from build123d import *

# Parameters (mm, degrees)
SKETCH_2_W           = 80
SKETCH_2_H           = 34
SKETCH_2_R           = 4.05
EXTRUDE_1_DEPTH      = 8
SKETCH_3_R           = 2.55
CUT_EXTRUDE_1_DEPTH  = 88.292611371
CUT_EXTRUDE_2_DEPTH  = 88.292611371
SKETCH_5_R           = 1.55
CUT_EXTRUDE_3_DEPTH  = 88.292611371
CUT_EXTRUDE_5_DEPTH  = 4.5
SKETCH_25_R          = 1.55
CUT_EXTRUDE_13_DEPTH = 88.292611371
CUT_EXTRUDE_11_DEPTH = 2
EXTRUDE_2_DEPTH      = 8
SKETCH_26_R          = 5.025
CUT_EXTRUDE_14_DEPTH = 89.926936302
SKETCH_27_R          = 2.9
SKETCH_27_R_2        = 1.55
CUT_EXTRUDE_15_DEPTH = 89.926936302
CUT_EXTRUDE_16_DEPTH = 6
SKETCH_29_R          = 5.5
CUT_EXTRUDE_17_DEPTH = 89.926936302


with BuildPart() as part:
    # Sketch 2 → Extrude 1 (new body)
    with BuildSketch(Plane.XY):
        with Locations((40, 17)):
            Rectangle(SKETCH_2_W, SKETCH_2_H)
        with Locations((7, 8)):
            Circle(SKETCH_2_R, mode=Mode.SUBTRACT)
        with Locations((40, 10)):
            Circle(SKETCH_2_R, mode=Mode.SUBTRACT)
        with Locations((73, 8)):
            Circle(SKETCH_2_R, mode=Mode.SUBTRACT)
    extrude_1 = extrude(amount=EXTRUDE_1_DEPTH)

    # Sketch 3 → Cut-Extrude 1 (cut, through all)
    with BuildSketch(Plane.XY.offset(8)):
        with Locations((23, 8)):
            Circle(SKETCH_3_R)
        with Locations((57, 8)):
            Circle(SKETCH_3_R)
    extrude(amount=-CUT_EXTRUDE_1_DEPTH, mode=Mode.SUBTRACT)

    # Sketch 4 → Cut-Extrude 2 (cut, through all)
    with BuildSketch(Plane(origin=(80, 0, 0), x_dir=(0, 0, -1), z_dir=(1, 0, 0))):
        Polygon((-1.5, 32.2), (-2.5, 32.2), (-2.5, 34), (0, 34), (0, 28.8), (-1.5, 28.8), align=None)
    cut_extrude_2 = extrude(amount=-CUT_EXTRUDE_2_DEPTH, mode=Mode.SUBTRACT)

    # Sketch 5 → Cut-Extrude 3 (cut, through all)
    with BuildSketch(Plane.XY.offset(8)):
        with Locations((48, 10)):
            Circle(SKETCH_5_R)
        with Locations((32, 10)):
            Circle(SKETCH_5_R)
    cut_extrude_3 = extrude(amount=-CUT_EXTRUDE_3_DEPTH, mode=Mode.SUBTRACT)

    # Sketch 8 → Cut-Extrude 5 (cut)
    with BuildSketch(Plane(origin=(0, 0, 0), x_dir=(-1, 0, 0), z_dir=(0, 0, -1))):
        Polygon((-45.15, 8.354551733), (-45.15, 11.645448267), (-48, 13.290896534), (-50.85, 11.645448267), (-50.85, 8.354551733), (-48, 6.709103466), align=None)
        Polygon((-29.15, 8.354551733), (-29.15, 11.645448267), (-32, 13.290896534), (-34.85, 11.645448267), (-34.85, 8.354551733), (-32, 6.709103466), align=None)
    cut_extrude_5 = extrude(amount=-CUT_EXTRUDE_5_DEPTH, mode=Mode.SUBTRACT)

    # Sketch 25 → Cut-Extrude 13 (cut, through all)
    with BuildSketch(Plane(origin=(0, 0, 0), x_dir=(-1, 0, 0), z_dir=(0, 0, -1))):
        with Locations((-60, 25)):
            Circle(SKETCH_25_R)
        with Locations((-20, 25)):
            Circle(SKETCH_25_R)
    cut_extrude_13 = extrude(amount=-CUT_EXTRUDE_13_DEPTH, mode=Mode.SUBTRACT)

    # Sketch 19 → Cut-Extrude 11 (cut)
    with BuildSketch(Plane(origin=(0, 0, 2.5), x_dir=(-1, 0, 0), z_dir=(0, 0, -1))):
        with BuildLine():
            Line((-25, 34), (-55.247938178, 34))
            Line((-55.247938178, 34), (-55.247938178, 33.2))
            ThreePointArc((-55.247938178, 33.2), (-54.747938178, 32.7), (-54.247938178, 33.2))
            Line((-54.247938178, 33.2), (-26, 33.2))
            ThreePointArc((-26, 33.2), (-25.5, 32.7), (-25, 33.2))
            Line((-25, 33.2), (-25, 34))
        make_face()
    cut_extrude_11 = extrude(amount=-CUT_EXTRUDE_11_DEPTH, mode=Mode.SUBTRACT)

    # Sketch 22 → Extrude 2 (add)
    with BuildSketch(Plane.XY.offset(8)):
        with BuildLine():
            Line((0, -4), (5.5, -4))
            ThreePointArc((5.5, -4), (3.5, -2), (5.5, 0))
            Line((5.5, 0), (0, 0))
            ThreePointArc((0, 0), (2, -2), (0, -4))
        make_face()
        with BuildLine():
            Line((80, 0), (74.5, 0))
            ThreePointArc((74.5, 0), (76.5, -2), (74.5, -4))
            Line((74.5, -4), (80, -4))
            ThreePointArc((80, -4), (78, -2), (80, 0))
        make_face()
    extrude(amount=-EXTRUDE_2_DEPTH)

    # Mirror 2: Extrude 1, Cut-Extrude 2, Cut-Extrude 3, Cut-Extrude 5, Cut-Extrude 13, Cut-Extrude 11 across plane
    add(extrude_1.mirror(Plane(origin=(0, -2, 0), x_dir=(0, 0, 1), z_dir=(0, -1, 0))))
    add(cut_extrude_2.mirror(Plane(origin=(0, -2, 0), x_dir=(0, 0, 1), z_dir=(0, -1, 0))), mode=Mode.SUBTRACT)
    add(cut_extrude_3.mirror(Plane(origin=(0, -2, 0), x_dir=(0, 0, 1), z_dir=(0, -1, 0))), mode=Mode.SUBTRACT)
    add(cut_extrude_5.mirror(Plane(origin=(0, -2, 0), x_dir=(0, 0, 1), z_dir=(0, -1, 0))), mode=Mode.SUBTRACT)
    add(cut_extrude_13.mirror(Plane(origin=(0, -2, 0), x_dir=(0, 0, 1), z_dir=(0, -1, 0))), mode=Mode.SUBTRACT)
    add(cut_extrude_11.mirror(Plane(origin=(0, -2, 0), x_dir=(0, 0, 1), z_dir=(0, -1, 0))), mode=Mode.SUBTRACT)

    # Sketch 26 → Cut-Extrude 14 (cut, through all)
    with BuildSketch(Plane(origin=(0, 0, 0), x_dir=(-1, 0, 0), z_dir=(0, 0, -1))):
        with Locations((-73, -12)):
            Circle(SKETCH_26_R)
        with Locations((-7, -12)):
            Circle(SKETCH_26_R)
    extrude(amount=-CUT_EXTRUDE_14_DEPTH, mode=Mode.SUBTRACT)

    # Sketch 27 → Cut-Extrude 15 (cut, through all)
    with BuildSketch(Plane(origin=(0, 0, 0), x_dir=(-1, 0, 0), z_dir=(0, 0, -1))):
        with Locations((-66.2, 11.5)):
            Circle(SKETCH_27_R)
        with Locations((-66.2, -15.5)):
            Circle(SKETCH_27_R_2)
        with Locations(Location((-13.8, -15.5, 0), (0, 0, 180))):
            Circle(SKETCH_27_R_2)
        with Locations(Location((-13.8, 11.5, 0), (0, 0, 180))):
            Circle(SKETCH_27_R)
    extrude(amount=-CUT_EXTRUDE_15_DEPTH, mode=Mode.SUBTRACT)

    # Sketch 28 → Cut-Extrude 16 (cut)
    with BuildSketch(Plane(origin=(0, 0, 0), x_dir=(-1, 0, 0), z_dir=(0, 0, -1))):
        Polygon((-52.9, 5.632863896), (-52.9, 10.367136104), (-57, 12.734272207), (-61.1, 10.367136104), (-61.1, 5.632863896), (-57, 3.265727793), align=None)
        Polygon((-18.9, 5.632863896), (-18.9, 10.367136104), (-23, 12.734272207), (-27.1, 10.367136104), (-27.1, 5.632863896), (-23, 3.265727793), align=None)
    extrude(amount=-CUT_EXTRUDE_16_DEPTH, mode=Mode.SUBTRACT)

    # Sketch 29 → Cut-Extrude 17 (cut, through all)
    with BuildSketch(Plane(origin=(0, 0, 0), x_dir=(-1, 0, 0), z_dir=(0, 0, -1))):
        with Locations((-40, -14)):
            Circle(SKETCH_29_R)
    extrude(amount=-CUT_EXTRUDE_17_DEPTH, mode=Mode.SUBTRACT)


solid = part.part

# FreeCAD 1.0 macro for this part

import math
import FreeCAD as App
import Part
import Sketcher

V = App.Vector
Q = App.Units.Quantity


def add_polygon(sketch, points):
    """Adds a closed chain of lines whose ends are joined by coincident constraints."""
    first, n = sketch.GeometryCount, len(points)
    for a, b in zip(points, points[1:] + points[:1]):
        sketch.addGeometry(Part.LineSegment(App.Vector(*a, 0), App.Vector(*b, 0)), False)
    for i in range(n):
        sketch.addConstraint(Sketcher.Constraint("Coincident", first + i, 2, first + (i + 1) % n, 1))

doc = App.newDocument("Part")
body = doc.addObject("PartDesign::Body", "Body")

sketch1 = doc.addObject("Sketcher::SketchObject", "Sketch")
body.addObject(sketch1)
sketch1.AttachmentSupport = (doc.XY_Plane, [""])
sketch1.MapMode = "FlatFace"
add_polygon(sketch1, [(0, 34), (0, 0), (80, 0), (80, 34)])
sketch1.addGeometry(Part.Circle(V(7, 8, 0), V(0, 0, 1), 4), False)
sketch1.addGeometry(Part.Circle(V(73, 8, 0), V(0, 0, 1), 4), False)
sketch1.addGeometry(Part.Circle(V(40, 10, 0), V(0, 0, 1), 4), False)
sketch1.addConstraint([
    Sketcher.Constraint("Vertical", 0),
    Sketcher.Constraint("Horizontal", 1),
    Sketcher.Constraint("Vertical", 2),
    Sketcher.Constraint("Horizontal", 3),
    Sketcher.Constraint("Coincident", 0, 2, -1, 1),
    Sketcher.Constraint("Equal", 4, 5),
    Sketcher.Constraint("Equal", 5, 6),
    Sketcher.Constraint("Horizontal", 4, 3, 5, 3),
    Sketcher.Constraint("Diameter", 4, Q("8.1 mm")),
    Sketcher.Constraint("DistanceX", 1, 1, 1, 2, Q("80 mm")),
    Sketcher.Constraint("DistanceY", 0, 2, 0, 1, Q("34 mm")),
    Sketcher.Constraint("DistanceX", -1, 1, 4, 3, Q("7 mm")),
    Sketcher.Constraint("DistanceY", -1, 1, 4, 3, Q("8 mm")),
    Sketcher.Constraint("DistanceX", -1, 1, 5, 3, Q("73 mm")),
    Sketcher.Constraint("DistanceX", -1, 1, 6, 3, Q("40 mm")),
    Sketcher.Constraint("DistanceY", -1, 1, 6, 3, Q("10 mm")),
])
pad1 = doc.addObject("PartDesign::Pad", "Pad")
body.addObject(pad1)
pad1.Profile = sketch1
pad1.Length = 8

sketch2 = doc.addObject("Sketcher::SketchObject", "Sketch001")
body.addObject(sketch2)
sketch2.AttachmentSupport = (doc.XY_Plane, [""])
sketch2.MapMode = "FlatFace"
sketch2.AttachmentOffset = App.Placement(V(0, 0, 8), App.Rotation())
sketch2.addGeometry([
    Part.Circle(V(23, 8, 0), V(0, 0, 1), 2.5),
    Part.Circle(V(57, 8, 0), V(0, 0, 1), 2.5),
], False)
sketch2.addConstraint([
    Sketcher.Constraint("Equal", 0, 1),
    Sketcher.Constraint("Horizontal", 0, 3, 1, 3),
    Sketcher.Constraint("Diameter", 0, Q("5.1 mm")),
    Sketcher.Constraint("DistanceX", -1, 1, 0, 3, Q("23 mm")),
    Sketcher.Constraint("DistanceY", -1, 1, 0, 3, Q("8 mm")),
    Sketcher.Constraint("DistanceX", -1, 1, 1, 3, Q("57 mm")),
])
pocket1 = doc.addObject("PartDesign::Pocket", "Pocket")
body.addObject(pocket1)
pocket1.Profile = sketch2
pocket1.Type = "ThroughAll"

sketch3 = doc.addObject("Sketcher::SketchObject", "Sketch002")
body.addObject(sketch3)
sketch3.AttachmentSupport = (doc.YZ_Plane, [""])
sketch3.MapMode = "FlatFace"
sketch3.AttachmentOffset = App.Placement(V(0, 0, 80), App.Rotation())
add_polygon(sketch3, [(32.2, 2.5), (32.2, 1.5), (28.8, 1.5), (28.8, 0), (34, 0), (34, 2.5)])
sketch3.addConstraint([
    Sketcher.Constraint("Vertical", 0),
    Sketcher.Constraint("Horizontal", 1),
    Sketcher.Constraint("Vertical", 2),
    Sketcher.Constraint("Horizontal", 3),
    Sketcher.Constraint("Vertical", 4),
    Sketcher.Constraint("Horizontal", 5),
    Sketcher.Constraint("PointOnObject", 2, 2, -1),
    Sketcher.Constraint("DistanceY", 0, 2, 0, 1, Q("1 mm")),
    Sketcher.Constraint("DistanceX", 1, 2, 1, 1, Q("3.4 mm")),
    Sketcher.Constraint("DistanceX", 3, 1, 3, 2, Q("5.2 mm")),
    Sketcher.Constraint("DistanceY", 2, 2, 2, 1, Q("1.5 mm")),
    Sketcher.Constraint("DistanceX", -1, 1, 3, 2, Q("34 mm")),
])
pocket2 = doc.addObject("PartDesign::Pocket", "Pocket001")
body.addObject(pocket2)
pocket2.Profile = sketch3
pocket2.Type = "ThroughAll"

sketch4 = doc.addObject("Sketcher::SketchObject", "Sketch003")
body.addObject(sketch4)
sketch4.AttachmentSupport = (doc.XY_Plane, [""])
sketch4.MapMode = "FlatFace"
sketch4.AttachmentOffset = App.Placement(V(0, 0, 8), App.Rotation())
sketch4.addGeometry([
    Part.Circle(V(48, 10, 0), V(0, 0, 1), 1.6),
    Part.Circle(V(32, 10, 0), V(0, 0, 1), 1.6),
], False)
sketch4.addConstraint([
    Sketcher.Constraint("Equal", 0, 1),
    Sketcher.Constraint("Horizontal", 0, 3, 1, 3),
    Sketcher.Constraint("Diameter", 0, Q("3.1 mm")),
    Sketcher.Constraint("DistanceX", -1, 1, 0, 3, Q("48 mm")),
    Sketcher.Constraint("DistanceY", -1, 1, 0, 3, Q("10 mm")),
    Sketcher.Constraint("DistanceX", -1, 1, 1, 3, Q("32 mm")),
])
pocket3 = doc.addObject("PartDesign::Pocket", "Pocket002")
body.addObject(pocket3)
pocket3.Profile = sketch4
pocket3.Type = "ThroughAll"

sketch5 = doc.addObject("Sketcher::SketchObject", "Sketch004")
body.addObject(sketch5)
sketch5.AttachmentSupport = (doc.XY_Plane, [""])
sketch5.MapMode = "FlatFace"
add_polygon(sketch5, [(45.1, 8.4), (45.1, 11.6), (48, 13.3), (50.9, 11.6), (50.9, 8.4), (48, 6.7)])
add_polygon(sketch5, [(29.1, 8.4), (29.1, 11.6), (32, 13.3), (34.9, 11.6), (34.9, 8.4), (32, 6.7)])
sketch5.addConstraint([
    Sketcher.Constraint("Vertical", 0),
    Sketcher.Constraint("Vertical", 3),
    Sketcher.Constraint("Vertical", 6),
    Sketcher.Constraint("Vertical", 9),
    Sketcher.Constraint("Parallel", 1, 4),
    Sketcher.Constraint("Parallel", 2, 5),
    Sketcher.Constraint("Parallel", 4, 7),
    Sketcher.Constraint("Parallel", 5, 8),
    Sketcher.Constraint("Parallel", 7, 10),
    Sketcher.Constraint("Parallel", 8, 11),
    Sketcher.Constraint("Horizontal", 0, 2, 2, 2),
    Sketcher.Constraint("Horizontal", 3, 2, 5, 2),
    Sketcher.Constraint("Horizontal", 2, 2, 6, 2),
    Sketcher.Constraint("Horizontal", 1, 2, 7, 2),
    Sketcher.Constraint("Horizontal", 6, 2, 8, 2),
    Sketcher.Constraint("Horizontal", 5, 2, 9, 2),
    Sketcher.Constraint("Horizontal", 4, 2, 10, 2),
    Sketcher.Constraint("Vertical", 1, 2, 4, 2),
    Sketcher.Constraint("Angle", 1, Q("30 deg")),
    Sketcher.Constraint("DistanceX", -1, 1, 1, 2, Q("48 mm")),
    Sketcher.Constraint("DistanceX", -1, 1, 7, 2, Q("32 mm")),
    Sketcher.Constraint("DistanceX", 0, 2, 2, 2, Q("5.7 mm")),
    Sketcher.Constraint("DistanceY", 0, 1, 0, 2, Q("3.290897 mm")),
    Sketcher.Constraint("DistanceY", -1, 1, 0, 2, Q("11.645448 mm")),
])
pocket4 = doc.addObject("PartDesign::Pocket", "Pocket003")
body.addObject(pocket4)
pocket4.Profile = sketch5
pocket4.Length = 4.5
pocket4.Reversed = True

sketch6 = doc.addObject("Sketcher::SketchObject", "Sketch005")
body.addObject(sketch6)
sketch6.AttachmentSupport = (doc.XY_Plane, [""])
sketch6.MapMode = "FlatFace"
sketch6.addGeometry([
    Part.Circle(V(60, 25, 0), V(0, 0, 1), 1.6),
    Part.Circle(V(20, 25, 0), V(0, 0, 1), 1.6),
], False)
sketch6.addConstraint([
    Sketcher.Constraint("Equal", 0, 1),
    Sketcher.Constraint("Horizontal", 0, 3, 1, 3),
    Sketcher.Constraint("Diameter", 0, Q("3.1 mm")),
    Sketcher.Constraint("DistanceX", -1, 1, 0, 3, Q("60 mm")),
    Sketcher.Constraint("DistanceY", -1, 1, 0, 3, Q("25 mm")),
    Sketcher.Constraint("DistanceX", -1, 1, 1, 3, Q("20 mm")),
])
pocket5 = doc.addObject("PartDesign::Pocket", "Pocket004")
body.addObject(pocket5)
pocket5.Profile = sketch6
pocket5.Type = "ThroughAll"
pocket5.Reversed = True

sketch7 = doc.addObject("Sketcher::SketchObject", "Sketch006")
body.addObject(sketch7)
sketch7.AttachmentSupport = (doc.XY_Plane, [""])
sketch7.MapMode = "FlatFace"
sketch7.AttachmentOffset = App.Placement(V(0, 0, 2.5), App.Rotation())
sketch7.addGeometry([
    Part.LineSegment(V(25, 34, 0), V(55.2, 34, 0)),
    Part.LineSegment(V(55.2, 34, 0), V(55.2, 33.2, 0)),
    Part.ArcOfCircle(Part.Circle(V(54.7, 33.2, 0), V(0, 0, 1), 0.5), math.radians(180), math.radians(360)),
    Part.LineSegment(V(54.2, 33.2, 0), V(26, 33.2, 0)),
    Part.ArcOfCircle(Part.Circle(V(25.5, 33.2, 0), V(0, 0, 1), 0.5), math.radians(180), math.radians(360)),
    Part.LineSegment(V(25, 33.2, 0), V(25, 34, 0)),
], False)
sketch7.addConstraint([
    Sketcher.Constraint("Coincident", 0, 2, 1, 1),
    Sketcher.Constraint("Tangent", 1, 2, 2, 2),
    Sketcher.Constraint("Coincident", 2, 1, 3, 1),
    Sketcher.Constraint("Coincident", 3, 2, 4, 2),
    Sketcher.Constraint("Tangent", 4, 1, 5, 1),
    Sketcher.Constraint("Coincident", 5, 2, 0, 1),
    Sketcher.Constraint("Horizontal", 0),
    Sketcher.Constraint("Vertical", 1),
    Sketcher.Constraint("Horizontal", 3),
    Sketcher.Constraint("Vertical", 5),
    Sketcher.Constraint("Equal", 2, 4),
    Sketcher.Constraint("Horizontal", 2, 3, 4, 3),
    Sketcher.Constraint("Horizontal", 1, 2, 2, 1),
    Sketcher.Constraint("Radius", 2, Q("0.5 mm")),
    Sketcher.Constraint("DistanceY", 1, 2, 1, 1, Q("0.8 mm")),
    Sketcher.Constraint("DistanceY", -1, 1, 0, 2, Q("34 mm")),
    Sketcher.Constraint("DistanceX", -1, 1, 3, 2, Q("26 mm")),
    Sketcher.Constraint("DistanceX", 0, 1, 0, 2, Q("30.247938 mm")),
])
pocket6 = doc.addObject("PartDesign::Pocket", "Pocket005")
body.addObject(pocket6)
pocket6.Profile = sketch7
pocket6.Length = 2
pocket6.Reversed = True

sketch8 = doc.addObject("Sketcher::SketchObject", "Sketch007")
body.addObject(sketch8)
sketch8.AttachmentSupport = (doc.XY_Plane, [""])
sketch8.MapMode = "FlatFace"
sketch8.AttachmentOffset = App.Placement(V(0, 0, 8), App.Rotation())
sketch8.addGeometry([
    Part.LineSegment(V(0, -4, 0), V(5.5, -4, 0)),
    Part.ArcOfCircle(Part.Circle(V(5.5, -2, 0), V(0, 0, 1), 2), math.radians(90), math.radians(270)),
    Part.LineSegment(V(5.5, 0, 0), V(0, 0, 0)),
    Part.ArcOfCircle(Part.Circle(V(0, -2, 0), V(0, 0, 1), 2), math.radians(-90), math.radians(90)),
    Part.LineSegment(V(80, 0, 0), V(74.5, 0, 0)),
    Part.ArcOfCircle(Part.Circle(V(74.5, -2, 0), V(0, 0, 1), 2), math.radians(-90), math.radians(90)),
    Part.LineSegment(V(74.5, -4, 0), V(80, -4, 0)),
    Part.ArcOfCircle(Part.Circle(V(80, -2, 0), V(0, 0, 1), 2), math.radians(90), math.radians(270)),
], False)
sketch8.addConstraint([
    Sketcher.Constraint("Tangent", 0, 2, 1, 2),
    Sketcher.Constraint("Tangent", 1, 1, 2, 1),
    Sketcher.Constraint("Tangent", 2, 2, 3, 2),
    Sketcher.Constraint("Tangent", 3, 1, 0, 1),
    Sketcher.Constraint("Tangent", 4, 2, 5, 2),
    Sketcher.Constraint("Tangent", 5, 1, 6, 1),
    Sketcher.Constraint("Tangent", 6, 2, 7, 2),
    Sketcher.Constraint("Tangent", 7, 1, 4, 1),
    Sketcher.Constraint("Horizontal", 0),
    Sketcher.Constraint("Horizontal", 2),
    Sketcher.Constraint("Horizontal", 4),
    Sketcher.Constraint("Horizontal", 6),
    Sketcher.Constraint("Coincident", 2, 2, -1, 1),
    Sketcher.Constraint("Equal", 3, 5),
    Sketcher.Constraint("PointOnObject", 4, 2, -1),
    Sketcher.Constraint("Equal", 2, 4),
    Sketcher.Constraint("Radius", 1, Q("2 mm")),
    Sketcher.Constraint("DistanceX", 0, 1, 0, 2, Q("5.5 mm")),
    Sketcher.Constraint("DistanceX", -1, 1, 7, 3, Q("80 mm")),
])
pad2 = doc.addObject("PartDesign::Pad", "Pad001")
body.addObject(pad2)
pad2.Profile = sketch8
pad2.Length = 8
pad2.Reversed = True
doc.recompute()

datumplane = doc.addObject("PartDesign::Plane", "DatumPlane")
body.addObject(datumplane)
datumplane.AttachmentSupport = (doc.XZ_Plane, [""])
datumplane.MapMode = "FlatFace"
datumplane.AttachmentOffset = App.Placement(V(0, 0, 2), App.Rotation())
mirrored = doc.addObject("PartDesign::Mirrored", "Mirrored")
body.addObject(mirrored)
mirrored.Originals = [pad1, pocket2, pocket3, pocket4, pocket5, pocket6]
mirrored.MirrorPlane = (datumplane, [""])
body.Tip = mirrored

sketch9 = doc.addObject("Sketcher::SketchObject", "Sketch008")
body.addObject(sketch9)
sketch9.AttachmentSupport = (doc.XY_Plane, [""])
sketch9.MapMode = "FlatFace"
sketch9.addGeometry([
    Part.Circle(V(73, -12, 0), V(0, 0, 1), 5),
    Part.Circle(V(7, -12, 0), V(0, 0, 1), 5),
], False)
sketch9.addConstraint([
    Sketcher.Constraint("Equal", 0, 1),
    Sketcher.Constraint("Horizontal", 0, 3, 1, 3),
    Sketcher.Constraint("Diameter", 0, Q("10.05 mm")),
    Sketcher.Constraint("DistanceX", -1, 1, 0, 3, Q("73 mm")),
    Sketcher.Constraint("DistanceY", 0, 3, -1, 1, Q("12 mm")),
    Sketcher.Constraint("DistanceX", -1, 1, 1, 3, Q("7 mm")),
])
pocket7 = doc.addObject("PartDesign::Pocket", "Pocket006")
body.addObject(pocket7)
pocket7.Profile = sketch9
pocket7.Type = "ThroughAll"
pocket7.Reversed = True

sketch10 = doc.addObject("Sketcher::SketchObject", "Sketch009")
body.addObject(sketch10)
sketch10.AttachmentSupport = (doc.XY_Plane, [""])
sketch10.MapMode = "FlatFace"
sketch10.addGeometry([
    Part.Circle(V(66.2, 11.5, 0), V(0, 0, 1), 2.9),
    Part.Circle(V(66.2, -15.5, 0), V(0, 0, 1), 1.6),
    Part.Circle(V(13.8, -15.5, 0), V(0, 0, 1), 1.6),
    Part.Circle(V(13.8, 11.5, 0), V(0, 0, 1), 2.9),
], False)
sketch10.addConstraint([
    Sketcher.Constraint("Equal", 1, 2),
    Sketcher.Constraint("Equal", 0, 3),
    Sketcher.Constraint("Horizontal", 1, 3, 2, 3),
    Sketcher.Constraint("Horizontal", 0, 3, 3, 3),
    Sketcher.Constraint("Vertical", 0, 3, 1, 3),
    Sketcher.Constraint("Vertical", 2, 3, 3, 3),
    Sketcher.Constraint("Diameter", 0, Q("5.8 mm")),
    Sketcher.Constraint("Diameter", 1, Q("3.1 mm")),
    Sketcher.Constraint("DistanceY", 1, 3, 0, 3, Q("27 mm")),
    Sketcher.Constraint("DistanceX", -1, 1, 0, 3, Q("66.2 mm")),
    Sketcher.Constraint("DistanceY", -1, 1, 0, 3, Q("11.5 mm")),
    Sketcher.Constraint("DistanceX", -1, 1, 2, 3, Q("13.8 mm")),
])
pocket8 = doc.addObject("PartDesign::Pocket", "Pocket007")
body.addObject(pocket8)
pocket8.Profile = sketch10
pocket8.Type = "ThroughAll"
pocket8.Reversed = True

sketch11 = doc.addObject("Sketcher::SketchObject", "Sketch010")
body.addObject(sketch11)
sketch11.AttachmentSupport = (doc.XY_Plane, [""])
sketch11.MapMode = "FlatFace"
add_polygon(sketch11, [(52.9, 5.6), (52.9, 10.4), (57, 12.7), (61.1, 10.4), (61.1, 5.6), (57, 3.3)])
add_polygon(sketch11, [(18.9, 5.6), (18.9, 10.4), (23, 12.7), (27.1, 10.4), (27.1, 5.6), (23, 3.3)])
sketch11.addConstraint([
    Sketcher.Constraint("Vertical", 0),
    Sketcher.Constraint("Vertical", 3),
    Sketcher.Constraint("Vertical", 6),
    Sketcher.Constraint("Vertical", 9),
    Sketcher.Constraint("Parallel", 1, 4),
    Sketcher.Constraint("Parallel", 2, 5),
    Sketcher.Constraint("Parallel", 4, 7),
    Sketcher.Constraint("Parallel", 5, 8),
    Sketcher.Constraint("Parallel", 7, 10),
    Sketcher.Constraint("Parallel", 8, 11),
    Sketcher.Constraint("Horizontal", 0, 2, 2, 2),
    Sketcher.Constraint("Horizontal", 3, 2, 5, 2),
    Sketcher.Constraint("Horizontal", 2, 2, 6, 2),
    Sketcher.Constraint("Horizontal", 1, 2, 7, 2),
    Sketcher.Constraint("Horizontal", 6, 2, 8, 2),
    Sketcher.Constraint("Horizontal", 5, 2, 9, 2),
    Sketcher.Constraint("Horizontal", 4, 2, 10, 2),
    Sketcher.Constraint("Vertical", 1, 2, 4, 2),
    Sketcher.Constraint("Angle", 1, Q("30 deg")),
    Sketcher.Constraint("DistanceX", -1, 1, 1, 2, Q("57 mm")),
    Sketcher.Constraint("DistanceX", -1, 1, 7, 2, Q("23 mm")),
    Sketcher.Constraint("DistanceX", -1, 1, 0, 2, Q("52.9 mm")),
    Sketcher.Constraint("DistanceY", 0, 1, 0, 2, Q("4.734272 mm")),
    Sketcher.Constraint("DistanceY", -1, 1, 0, 2, Q("10.367136 mm")),
])
pocket9 = doc.addObject("PartDesign::Pocket", "Pocket008")
body.addObject(pocket9)
pocket9.Profile = sketch11
pocket9.Length = 6
pocket9.Reversed = True

sketch12 = doc.addObject("Sketcher::SketchObject", "Sketch011")
body.addObject(sketch12)
sketch12.AttachmentSupport = (doc.XY_Plane, [""])
sketch12.MapMode = "FlatFace"
sketch12.addGeometry(Part.Circle(V(40, -14, 0), V(0, 0, 1), 6), False)
sketch12.addConstraint([
    Sketcher.Constraint("Diameter", 0, Q("11 mm")),
    Sketcher.Constraint("DistanceX", -1, 1, 0, 3, Q("40 mm")),
    Sketcher.Constraint("DistanceY", 0, 3, -1, 1, Q("14 mm")),
])
pocket10 = doc.addObject("PartDesign::Pocket", "Pocket009")
body.addObject(pocket10)
pocket10.Profile = sketch12
pocket10.Type = "ThroughAll"
pocket10.Reversed = True

doc.recompute()
